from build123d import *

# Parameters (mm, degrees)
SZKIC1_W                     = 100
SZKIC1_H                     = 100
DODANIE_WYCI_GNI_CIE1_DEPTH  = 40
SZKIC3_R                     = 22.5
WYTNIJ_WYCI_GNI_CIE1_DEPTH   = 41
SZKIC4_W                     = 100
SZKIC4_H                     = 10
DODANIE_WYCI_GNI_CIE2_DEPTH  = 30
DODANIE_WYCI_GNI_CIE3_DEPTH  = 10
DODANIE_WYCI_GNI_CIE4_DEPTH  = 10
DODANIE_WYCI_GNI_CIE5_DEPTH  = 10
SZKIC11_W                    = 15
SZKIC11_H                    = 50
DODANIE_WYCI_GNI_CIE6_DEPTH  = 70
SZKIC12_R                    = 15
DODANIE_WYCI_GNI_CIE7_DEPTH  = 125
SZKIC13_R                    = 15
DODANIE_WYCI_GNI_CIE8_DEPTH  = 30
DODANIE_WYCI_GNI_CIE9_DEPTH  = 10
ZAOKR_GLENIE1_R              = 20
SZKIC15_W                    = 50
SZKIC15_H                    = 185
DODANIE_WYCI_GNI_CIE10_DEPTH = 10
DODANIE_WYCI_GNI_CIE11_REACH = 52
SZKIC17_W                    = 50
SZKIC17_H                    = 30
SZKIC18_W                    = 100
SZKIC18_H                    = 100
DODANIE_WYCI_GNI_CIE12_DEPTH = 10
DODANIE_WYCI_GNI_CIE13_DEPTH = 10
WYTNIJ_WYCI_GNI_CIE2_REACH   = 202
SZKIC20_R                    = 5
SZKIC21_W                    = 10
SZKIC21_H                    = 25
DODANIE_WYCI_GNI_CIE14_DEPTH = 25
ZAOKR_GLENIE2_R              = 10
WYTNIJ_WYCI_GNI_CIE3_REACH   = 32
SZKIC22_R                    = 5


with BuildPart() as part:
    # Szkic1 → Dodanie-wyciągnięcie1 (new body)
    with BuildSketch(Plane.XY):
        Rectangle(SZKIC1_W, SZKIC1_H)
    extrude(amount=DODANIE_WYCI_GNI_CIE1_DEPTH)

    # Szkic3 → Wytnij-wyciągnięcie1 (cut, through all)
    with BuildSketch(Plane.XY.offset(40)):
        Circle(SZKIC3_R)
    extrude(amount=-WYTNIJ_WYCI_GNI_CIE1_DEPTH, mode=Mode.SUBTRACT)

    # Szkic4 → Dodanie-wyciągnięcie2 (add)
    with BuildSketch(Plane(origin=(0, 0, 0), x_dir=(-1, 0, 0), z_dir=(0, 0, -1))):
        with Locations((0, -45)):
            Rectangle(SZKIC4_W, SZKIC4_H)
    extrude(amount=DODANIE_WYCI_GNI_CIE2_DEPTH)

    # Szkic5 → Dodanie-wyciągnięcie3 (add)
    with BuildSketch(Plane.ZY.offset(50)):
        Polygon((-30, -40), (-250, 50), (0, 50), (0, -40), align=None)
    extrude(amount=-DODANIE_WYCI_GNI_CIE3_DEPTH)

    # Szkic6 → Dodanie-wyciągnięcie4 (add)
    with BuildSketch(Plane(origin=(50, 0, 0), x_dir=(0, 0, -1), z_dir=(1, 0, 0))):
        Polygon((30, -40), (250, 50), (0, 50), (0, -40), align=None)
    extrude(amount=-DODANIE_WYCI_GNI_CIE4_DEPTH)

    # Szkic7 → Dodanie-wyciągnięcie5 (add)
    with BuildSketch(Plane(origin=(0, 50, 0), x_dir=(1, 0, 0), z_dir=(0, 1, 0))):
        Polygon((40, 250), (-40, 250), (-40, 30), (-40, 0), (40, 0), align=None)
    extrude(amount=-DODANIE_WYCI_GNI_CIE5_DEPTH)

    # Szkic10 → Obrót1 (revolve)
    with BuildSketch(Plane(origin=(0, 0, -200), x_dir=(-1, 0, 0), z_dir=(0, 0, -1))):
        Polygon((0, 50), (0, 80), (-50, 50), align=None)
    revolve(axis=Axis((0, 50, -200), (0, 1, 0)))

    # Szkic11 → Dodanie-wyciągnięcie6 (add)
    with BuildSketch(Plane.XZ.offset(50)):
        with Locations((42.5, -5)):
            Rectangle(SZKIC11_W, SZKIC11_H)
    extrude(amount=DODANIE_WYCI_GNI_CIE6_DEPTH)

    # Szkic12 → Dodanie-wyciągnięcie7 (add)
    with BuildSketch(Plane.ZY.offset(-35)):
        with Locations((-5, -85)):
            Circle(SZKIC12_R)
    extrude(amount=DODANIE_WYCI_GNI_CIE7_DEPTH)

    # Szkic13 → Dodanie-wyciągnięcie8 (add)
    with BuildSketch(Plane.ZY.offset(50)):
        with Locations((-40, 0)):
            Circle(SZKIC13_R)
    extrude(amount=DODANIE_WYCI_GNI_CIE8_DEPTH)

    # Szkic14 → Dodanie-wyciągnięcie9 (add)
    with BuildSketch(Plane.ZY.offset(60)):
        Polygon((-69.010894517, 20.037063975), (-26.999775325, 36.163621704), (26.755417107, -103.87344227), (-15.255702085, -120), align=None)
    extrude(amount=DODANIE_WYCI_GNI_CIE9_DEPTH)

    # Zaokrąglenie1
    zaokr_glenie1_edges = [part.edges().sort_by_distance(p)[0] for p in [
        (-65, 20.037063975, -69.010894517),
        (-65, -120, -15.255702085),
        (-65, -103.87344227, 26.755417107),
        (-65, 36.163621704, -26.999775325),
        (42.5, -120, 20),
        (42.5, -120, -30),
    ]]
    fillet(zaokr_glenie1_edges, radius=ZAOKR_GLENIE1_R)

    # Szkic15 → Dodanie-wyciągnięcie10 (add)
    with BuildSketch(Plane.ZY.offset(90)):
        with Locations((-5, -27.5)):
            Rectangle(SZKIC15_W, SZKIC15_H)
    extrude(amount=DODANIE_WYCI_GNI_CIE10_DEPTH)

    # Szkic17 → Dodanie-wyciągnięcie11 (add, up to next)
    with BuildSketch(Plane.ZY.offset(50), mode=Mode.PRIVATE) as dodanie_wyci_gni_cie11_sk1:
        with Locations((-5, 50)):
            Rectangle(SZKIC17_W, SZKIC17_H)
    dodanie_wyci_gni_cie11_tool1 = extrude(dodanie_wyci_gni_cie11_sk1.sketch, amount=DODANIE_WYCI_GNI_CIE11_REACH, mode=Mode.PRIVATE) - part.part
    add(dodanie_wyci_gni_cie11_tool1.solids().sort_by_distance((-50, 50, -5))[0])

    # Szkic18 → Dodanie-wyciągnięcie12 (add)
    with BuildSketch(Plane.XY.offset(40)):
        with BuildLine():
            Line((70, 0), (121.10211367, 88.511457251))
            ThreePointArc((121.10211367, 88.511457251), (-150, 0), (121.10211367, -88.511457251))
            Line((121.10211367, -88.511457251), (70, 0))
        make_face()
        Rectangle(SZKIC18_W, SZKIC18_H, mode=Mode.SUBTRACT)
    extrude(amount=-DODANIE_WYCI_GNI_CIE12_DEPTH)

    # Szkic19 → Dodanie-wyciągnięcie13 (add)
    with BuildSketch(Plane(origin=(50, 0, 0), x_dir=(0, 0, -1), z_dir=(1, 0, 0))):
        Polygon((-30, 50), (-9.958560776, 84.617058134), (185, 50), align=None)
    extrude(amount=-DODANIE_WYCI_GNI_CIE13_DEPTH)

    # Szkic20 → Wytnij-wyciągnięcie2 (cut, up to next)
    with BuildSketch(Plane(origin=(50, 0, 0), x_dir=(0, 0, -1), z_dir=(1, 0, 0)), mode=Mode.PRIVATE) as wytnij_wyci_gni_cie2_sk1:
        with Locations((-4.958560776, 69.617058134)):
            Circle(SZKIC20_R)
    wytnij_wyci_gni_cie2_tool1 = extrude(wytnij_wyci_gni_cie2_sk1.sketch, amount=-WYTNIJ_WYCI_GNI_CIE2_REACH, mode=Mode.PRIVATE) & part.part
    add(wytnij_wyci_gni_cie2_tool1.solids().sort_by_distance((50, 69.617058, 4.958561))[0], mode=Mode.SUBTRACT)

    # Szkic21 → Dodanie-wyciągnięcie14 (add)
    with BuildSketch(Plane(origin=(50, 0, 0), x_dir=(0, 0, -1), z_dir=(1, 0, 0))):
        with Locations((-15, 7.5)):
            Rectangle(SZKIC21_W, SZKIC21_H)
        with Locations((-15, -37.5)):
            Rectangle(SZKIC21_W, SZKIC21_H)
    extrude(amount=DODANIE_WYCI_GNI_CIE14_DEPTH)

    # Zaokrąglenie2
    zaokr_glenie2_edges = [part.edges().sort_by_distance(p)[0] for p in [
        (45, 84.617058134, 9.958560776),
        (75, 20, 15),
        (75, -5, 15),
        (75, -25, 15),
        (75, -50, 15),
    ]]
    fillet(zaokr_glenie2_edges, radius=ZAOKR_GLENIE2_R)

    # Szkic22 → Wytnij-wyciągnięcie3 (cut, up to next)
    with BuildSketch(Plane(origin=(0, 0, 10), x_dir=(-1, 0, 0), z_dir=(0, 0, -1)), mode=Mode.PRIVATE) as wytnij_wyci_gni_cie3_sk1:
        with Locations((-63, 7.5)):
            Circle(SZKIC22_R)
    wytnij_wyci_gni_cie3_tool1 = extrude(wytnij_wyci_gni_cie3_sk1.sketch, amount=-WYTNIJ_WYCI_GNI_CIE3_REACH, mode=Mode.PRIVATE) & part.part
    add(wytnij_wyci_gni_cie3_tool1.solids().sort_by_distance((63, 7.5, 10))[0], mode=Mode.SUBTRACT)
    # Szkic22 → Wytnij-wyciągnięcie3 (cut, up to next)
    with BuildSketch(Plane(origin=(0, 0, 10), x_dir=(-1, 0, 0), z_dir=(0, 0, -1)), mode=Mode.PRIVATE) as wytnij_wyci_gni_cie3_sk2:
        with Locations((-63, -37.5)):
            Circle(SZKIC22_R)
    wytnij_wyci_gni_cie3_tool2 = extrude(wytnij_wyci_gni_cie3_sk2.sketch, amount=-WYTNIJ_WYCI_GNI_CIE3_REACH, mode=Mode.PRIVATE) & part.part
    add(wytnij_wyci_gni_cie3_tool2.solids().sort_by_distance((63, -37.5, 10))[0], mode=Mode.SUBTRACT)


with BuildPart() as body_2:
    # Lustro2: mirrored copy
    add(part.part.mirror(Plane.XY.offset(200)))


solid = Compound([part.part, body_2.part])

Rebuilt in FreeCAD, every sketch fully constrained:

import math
import FreeCAD as App
import Part
import Sketcher

V = App.Vector
Q = App.Units.Quantity


def edges_at(feature, points):
    """Names of the edges that pass closest to the given points."""
    edges = feature.Shape.Edges
    near = lambda p: min(range(len(edges)), key=lambda i: edges[i].distToShape(Part.Vertex(*p))[0])
    return sorted({f"Edge{near(p) + 1}" for p in points})


def add_polygon(sketch, points):
    """Adds a closed chain of lines whose ends are joined by coincident constraints."""
    first, n = sketch.GeometryCount, len(points)
    for a, b in zip(points, points[1:] + points[:1]):
        sketch.addGeometry(Part.LineSegment(App.Vector(*a, 0), App.Vector(*b, 0)), False)
    for i in range(n):
        sketch.addConstraint(Sketcher.Constraint("Coincident", first + i, 2, first + (i + 1) % n, 1))

doc = App.newDocument("Part")
params = doc.addObject("Spreadsheet::Sheet", "Params")
for row, (alias, value) in enumerate([
    ("sketch1_width", "100 mm"),
    ("pad1_length", "40 mm"),
    ("sketch2_diameter", "45 mm"),
    ("sketch3_width", "100 mm"),
    ("sketch3_height", "10 mm"),
    ("pad2_length", "30 mm"),
    ("sketch4_width", "90 mm"),
    ("sketch4_height", "30 mm"),
    ("sketch4_height2", "250 mm"),
    ("pad3_length", "10 mm"),
    ("sketch5_width", "90 mm"),
    ("sketch5_height", "250 mm"),
    ("sketch5_height2", "30 mm"),
    ("pad4_length", "10 mm"),
    ("sketch6_width", "80 mm"),
    ("sketch6_height", "250 mm"),
    ("pad5_length", "10 mm"),
    ("sketch7_width", "50 mm"),
    ("sketch7_height", "30 mm"),
    ("revolution_angle", "360 deg"),
    ("sketch8_width", "15 mm"),
    ("sketch8_height", "50 mm"),
    ("pad6_length", "70 mm"),
    ("sketch9_diameter", "30 mm"),
    ("pad7_length", "125 mm"),
    ("sketch10_diameter", "30 mm"),
    ("pad8_length", "30 mm"),
    ("sketch11_length", "45 mm"),
    ("sketch11_length2", "150 mm"),
    ("pad9_length", "10 mm"),
    ("fillet_radius", "20 mm"),
    ("sketch12_width", "185 mm"),
    ("sketch12_height", "50 mm"),
    ("pad10_length", "10 mm"),
    ("sketch13_width", "30 mm"),
    ("sketch13_height", "50 mm"),
    ("sketch14_radius", "150 mm"),
    ("sketch14_width", "100 mm"),
    ("pad12_length", "10 mm"),
    ("sketch15_height", "215 mm"),
    ("sketch15_length", "40 mm"),
    ("pad13_length", "10 mm"),
    ("sketch16_diameter", "10 mm"),
    ("sketch17_width", "25 mm"),
    ("sketch17_height", "10 mm"),
    ("pad14_length", "25 mm"),
    ("fillet2_radius", "10 mm"),
    ("sketch18_diameter", "10 mm"),
    ("sketch19_diameter", "10 mm"),
], start=1):
    params.set(f"A{row}", alias)
    params.set(f"B{row}", "=" + value)
    params.setAlias(f"B{row}", alias)

body = doc.addObject("PartDesign::Body", "Body")

sketch1 = body.newObject("Sketcher::SketchObject", "Sketch")
sketch1.AttachmentSupport = (doc.getObject("XY_Plane"), [""])
sketch1.MapMode = "FlatFace"
add_polygon(sketch1, [(-50, 50), (-50, -50), (50, -50), (50, 50)])
sketch1.addConstraint([
    Sketcher.Constraint("Vertical", 0),
    Sketcher.Constraint("Horizontal", 1),
    Sketcher.Constraint("Vertical", 2),
    Sketcher.Constraint("Horizontal", 3),
    Sketcher.Constraint("Symmetric", 0, 2, 2, 2, -1, 1),
    Sketcher.Constraint("Equal", 3, 0),
    Sketcher.Constraint("DistanceX", 1, 1, 1, 2, 100.0),
])
sketch1.setExpression("Constraints[10]", "Params.sketch1_width")
pad1 = body.newObject("PartDesign::Pad", "Pad")
pad1.Profile = sketch1
pad1.setExpression("Length", "Params.pad1_length")

sketch2 = body.newObject("Sketcher::SketchObject", "Sketch001")
sketch2.AttachmentSupport = (doc.getObject("XY_Plane"), [""])
sketch2.MapMode = "FlatFace"
sketch2.AttachmentOffset = App.Placement(V(0, 0, 40), App.Rotation())
sketch2.addGeometry(Part.Circle(V(0, 0, 0), V(0, 0, 1), 22.5), False)
sketch2.addConstraint([
    Sketcher.Constraint("Coincident", 0, 3, -1, 1),
    Sketcher.Constraint("Diameter", 0, 45.0),
])
sketch2.setExpression("Constraints[1]", "Params.sketch2_diameter")
pocket1 = body.newObject("PartDesign::Pocket", "Pocket")
pocket1.Profile = sketch2
pocket1.Type = "ThroughAll"

sketch3 = body.newObject("Sketcher::SketchObject", "Sketch002")
sketch3.AttachmentSupport = (doc.getObject("XY_Plane"), [""])
sketch3.MapMode = "FlatFace"
add_polygon(sketch3, [(50, -40), (50, -50), (-50, -50), (-50, -40)])
sketch3.addConstraint([
    Sketcher.Constraint("Vertical", 0),
    Sketcher.Constraint("Horizontal", 1),
    Sketcher.Constraint("Vertical", 2),
    Sketcher.Constraint("Horizontal", 3),
    Sketcher.Constraint("DistanceX", 1, 2, 1, 1, 100.0),
    Sketcher.Constraint("DistanceY", 0, 2, 0, 1, 10.0),
    Sketcher.Constraint("DistanceX", -1, 1, 0, 2, 50.0),
    Sketcher.Constraint("DistanceY", 0, 2, -1, 1, 50.0),
])
sketch3.setExpression("Constraints[8]", "Params.sketch3_width")
sketch3.setExpression("Constraints[9]", "Params.sketch3_height")
pad2 = body.newObject("PartDesign::Pad", "Pad001")
pad2.Profile = sketch3
pad2.setExpression("Length", "Params.pad2_length")
pad2.Reversed = True

sketch4 = body.newObject("Sketcher::SketchObject", "Sketch003")
sketch4.AttachmentSupport = (doc.getObject("YZ_Plane"), [""])
sketch4.MapMode = "FlatFace"
sketch4.AttachmentOffset = App.Placement(V(0, 0, -50), App.Rotation())
add_polygon(sketch4, [(50, -250), (-40, -30), (-40, 0), (50, 0)])
sketch4.addConstraint([
    Sketcher.Constraint("Vertical", 1),
    Sketcher.Constraint("Horizontal", 2),
    Sketcher.Constraint("Vertical", 3),
    Sketcher.Constraint("PointOnObject", 1, 2, -1),
    Sketcher.Constraint("DistanceX", 2, 1, 2, 2, 90.0),
    Sketcher.Constraint("DistanceY", 1, 1, 1, 2, 30.0),
    Sketcher.Constraint("DistanceY", 3, 2, 3, 1, 250.0),
    Sketcher.Constraint("DistanceX", 0, 2, -1, 1, 40.0),
])
sketch4.setExpression("Constraints[8]", "Params.sketch4_width")
sketch4.setExpression("Constraints[9]", "Params.sketch4_height")
sketch4.setExpression("Constraints[10]", "Params.sketch4_height2")
pad3 = body.newObject("PartDesign::Pad", "Pad002")
pad3.Profile = sketch4
pad3.setExpression("Length", "Params.pad3_length")

sketch5 = body.newObject("Sketcher::SketchObject", "Sketch004")
sketch5.AttachmentSupport = (doc.getObject("YZ_Plane"), [""])
sketch5.MapMode = "FlatFace"
sketch5.AttachmentOffset = App.Placement(V(0, 0, 50), App.Rotation())
add_polygon(sketch5, [(-40, -30), (50, -250), (50, 0), (-40, 0)])
sketch5.addConstraint([
    Sketcher.Constraint("Vertical", 1),
    Sketcher.Constraint("Horizontal", 2),
    Sketcher.Constraint("Vertical", 3),
    Sketcher.Constraint("PointOnObject", 1, 2, -1),
    Sketcher.Constraint("DistanceX", 2, 2, 2, 1, 90.0),
    Sketcher.Constraint("DistanceY", 1, 1, 1, 2, 250.0),
    Sketcher.Constraint("DistanceY", 3, 2, 3, 1, 30.0),
    Sketcher.Constraint("DistanceX", -1, 1, 0, 2, 50.0),
])
sketch5.setExpression("Constraints[8]", "Params.sketch5_width")
sketch5.setExpression("Constraints[9]", "Params.sketch5_height")
sketch5.setExpression("Constraints[10]", "Params.sketch5_height2")
pad4 = body.newObject("PartDesign::Pad", "Pad003")
pad4.Profile = sketch5
pad4.setExpression("Length", "Params.pad4_length")
pad4.Reversed = True

sketch6 = body.newObject("Sketcher::SketchObject", "Sketch005")
sketch6.AttachmentSupport = (doc.getObject("XZ_Plane"), [""])
sketch6.MapMode = "FlatFace"
sketch6.AttachmentOffset = App.Placement(V(0, 0, -50), App.Rotation())
add_polygon(sketch6, [(40, -250), (-40, -250), (-40, 0), (40, 0)])
sketch6.addConstraint([
    Sketcher.Constraint("Horizontal", 0),
    Sketcher.Constraint("Vertical", 1),
    Sketcher.Constraint("Horizontal", 2),
    Sketcher.Constraint("Vertical", 3),
    Sketcher.Constraint("Symmetric", 1, 2, 2, 2, -1, 1),
    Sketcher.Constraint("DistanceX", 0, 2, 0, 1, 80.0),
    Sketcher.Constraint("DistanceY", 1, 1, 1, 2, 250.0),
])
sketch6.setExpression("Constraints[9]", "Params.sketch6_width")
sketch6.setExpression("Constraints[10]", "Params.sketch6_height")
pad5 = body.newObject("PartDesign::Pad", "Pad004")
pad5.Profile = sketch6
pad5.setExpression("Length", "Params.pad5_length")

sketch7 = body.newObject("Sketcher::SketchObject", "Sketch006")
sketch7.AttachmentSupport = (doc.getObject("XY_Plane"), [""])
sketch7.MapMode = "FlatFace"
sketch7.AttachmentOffset = App.Placement(V(0, 0, -200), App.Rotation())
add_polygon(sketch7, [(0, 50), (0, 80), (50, 50)])
sketch7.addConstraint([
    Sketcher.Constraint("Vertical", 0),
    Sketcher.Constraint("Horizontal", 2),
    Sketcher.Constraint("PointOnObject", 0, 2, -2),
    Sketcher.Constraint("DistanceX", 2, 2, 2, 1, 50.0),
    Sketcher.Constraint("DistanceY", 0, 1, 0, 2, 30.0),
    Sketcher.Constraint("DistanceY", -1, 1, 0, 2, 80.0),
])
sketch7.setExpression("Constraints[6]", "Params.sketch7_width")
sketch7.setExpression("Constraints[7]", "Params.sketch7_height")
revolution = body.newObject("PartDesign::Revolution", "Revolution")
revolution.Profile = sketch7
revolution.ReferenceAxis = (sketch7, ["V_Axis"])
revolution.setExpression("Angle", "Params.revolution_angle")

sketch8 = body.newObject("Sketcher::SketchObject", "Sketch007")
sketch8.AttachmentSupport = (doc.getObject("XZ_Plane"), [""])
sketch8.MapMode = "FlatFace"
sketch8.AttachmentOffset = App.Placement(V(0, 0, 50), App.Rotation())
add_polygon(sketch8, [(35, 20), (35, -30), (50, -30), (50, 20)])
sketch8.addConstraint([
    Sketcher.Constraint("Vertical", 0),
    Sketcher.Constraint("Horizontal", 1),
    Sketcher.Constraint("Vertical", 2),
    Sketcher.Constraint("Horizontal", 3),
    Sketcher.Constraint("DistanceX", 1, 1, 1, 2, 15.0),
    Sketcher.Constraint("DistanceY", 0, 2, 0, 1, 50.0),
    Sketcher.Constraint("DistanceX", -1, 1, 0, 2, 35.0),
    Sketcher.Constraint("DistanceY", 0, 2, -1, 1, 30.0),
])
sketch8.setExpression("Constraints[8]", "Params.sketch8_width")
sketch8.setExpression("Constraints[9]", "Params.sketch8_height")
pad6 = body.newObject("PartDesign::Pad", "Pad005")
pad6.Profile = sketch8
pad6.setExpression("Length", "Params.pad6_length")

sketch9 = body.newObject("Sketcher::SketchObject", "Sketch008")
sketch9.AttachmentSupport = (doc.getObject("YZ_Plane"), [""])
sketch9.MapMode = "FlatFace"
sketch9.AttachmentOffset = App.Placement(V(0, 0, 35), App.Rotation())
sketch9.addGeometry(Part.Circle(V(-85, -5, 0), V(0, 0, 1), 15), False)
sketch9.addConstraint([
    Sketcher.Constraint("Diameter", 0, 30.0),
    Sketcher.Constraint("DistanceX", 0, 3, -1, 1, 85.0),
    Sketcher.Constraint("DistanceY", 0, 3, -1, 1, 5.0),
])
sketch9.setExpression("Constraints[0]", "Params.sketch9_diameter")
pad7 = body.newObject("PartDesign::Pad", "Pad006")
pad7.Profile = sketch9
pad7.setExpression("Length", "Params.pad7_length")
pad7.Reversed = True

sketch10 = body.newObject("Sketcher::SketchObject", "Sketch009")
sketch10.AttachmentSupport = (doc.getObject("YZ_Plane"), [""])
sketch10.MapMode = "FlatFace"
sketch10.AttachmentOffset = App.Placement(V(0, 0, -50), App.Rotation())
sketch10.addGeometry(Part.Circle(V(0, -40, 0), V(0, 0, 1), 15), False)
sketch10.addConstraint([
    Sketcher.Constraint("PointOnObject", 0, 3, -2),
    Sketcher.Constraint("Diameter", 0, 30.0),
    Sketcher.Constraint("DistanceY", 0, 3, -1, 1, 40.0),
])
sketch10.setExpression("Constraints[1]", "Params.sketch10_diameter")
pad8 = body.newObject("PartDesign::Pad", "Pad007")
pad8.Profile = sketch10
pad8.setExpression("Length", "Params.pad8_length")
pad8.Reversed = True

sketch11 = body.newObject("Sketcher::SketchObject", "Sketch010")
sketch11.AttachmentSupport = (doc.getObject("YZ_Plane"), [""])
sketch11.MapMode = "FlatFace"
sketch11.AttachmentOffset = App.Placement(V(0, 0, -60), App.Rotation())
add_polygon(sketch11, [(36.163622, -26.999775), (20.037064, -69.010895), (-120, -15.255702), (-103.873442, 26.755417)])
sketch11.addConstraint([
    Sketcher.Constraint("Perpendicular", 0, 1),
    Sketcher.Constraint("Perpendicular", 1, 2),
    Sketcher.Constraint("Perpendicular", 2, 3),
    Sketcher.Constraint("Angle", 0, Q("-111 deg")),
    Sketcher.Constraint("Distance", 0, 45.0),
    Sketcher.Constraint("Distance", 1, 150.0),
    Sketcher.Constraint("DistanceX", 1, 2, -1, 1, 120.0),
    Sketcher.Constraint("DistanceY", 0, 2, -1, 1, 69.010895),
])
sketch11.setExpression("Constraints[8]", "Params.sketch11_length")
sketch11.setExpression("Constraints[9]", "Params.sketch11_length2")
pad9 = body.newObject("PartDesign::Pad", "Pad008")
pad9.Profile = sketch11
pad9.setExpression("Length", "Params.pad9_length")
pad9.Reversed = True
doc.recompute()

fillet = body.newObject("PartDesign::Fillet", "Fillet")
fillet.Base = (pad9, edges_at(pad9, [
    (-65, 20.037, -69.011),
    (-65, -120, -15.256),
    (-65, -103.873, 26.755),
    (-65, 36.164, -27),
    (42.5, -120, 20),
    (42.5, -120, -30),
]))
fillet.setExpression("Radius", "Params.fillet_radius")

sketch12 = body.newObject("Sketcher::SketchObject", "Sketch011")
sketch12.AttachmentSupport = (doc.getObject("YZ_Plane"), [""])
sketch12.MapMode = "FlatFace"
sketch12.AttachmentOffset = App.Placement(V(0, 0, -90), App.Rotation())
add_polygon(sketch12, [(65, -30), (-120, -30), (-120, 20), (65, 20)])
sketch12.addConstraint([
    Sketcher.Constraint("Horizontal", 0),
    Sketcher.Constraint("Vertical", 1),
    Sketcher.Constraint("Horizontal", 2),
    Sketcher.Constraint("Vertical", 3),
    Sketcher.Constraint("DistanceX", 0, 2, 0, 1, 185.0),
    Sketcher.Constraint("DistanceY", 1, 1, 1, 2, 50.0),
    Sketcher.Constraint("DistanceX", 0, 2, -1, 1, 120.0),
    Sketcher.Constraint("DistanceY", 0, 2, -1, 1, 30.0),
])
sketch12.setExpression("Constraints[8]", "Params.sketch12_width")
sketch12.setExpression("Constraints[9]", "Params.sketch12_height")
pad10 = body.newObject("PartDesign::Pad", "Pad009")
pad10.Profile = sketch12
pad10.setExpression("Length", "Params.pad10_length")
pad10.Reversed = True

sketch13 = body.newObject("Sketcher::SketchObject", "Sketch012")
sketch13.AttachmentSupport = (doc.getObject("YZ_Plane"), [""])
sketch13.MapMode = "FlatFace"
sketch13.AttachmentOffset = App.Placement(V(0, 0, -50), App.Rotation())
add_polygon(sketch13, [(65, -30), (35, -30), (35, 20), (65, 20)])
sketch13.addConstraint([
    Sketcher.Constraint("Horizontal", 0),
    Sketcher.Constraint("Vertical", 1),
    Sketcher.Constraint("Horizontal", 2),
    Sketcher.Constraint("Vertical", 3),
    Sketcher.Constraint("DistanceX", 0, 2, 0, 1, 30.0),
    Sketcher.Constraint("DistanceY", 1, 1, 1, 2, 50.0),
    Sketcher.Constraint("DistanceX", -1, 1, 0, 2, 35.0),
    Sketcher.Constraint("DistanceY", 0, 2, -1, 1, 30.0),
])
sketch13.setExpression("Constraints[8]", "Params.sketch13_width")
sketch13.setExpression("Constraints[9]", "Params.sketch13_height")
pad11 = body.newObject("PartDesign::Pad", "Pad010")
pad11.Profile = sketch13
pad11.Type = "UpToFirst"
pad11.Reversed = True

sketch14 = body.newObject("Sketcher::SketchObject", "Sketch013")
sketch14.AttachmentSupport = (doc.getObject("XY_Plane"), [""])
sketch14.MapMode = "FlatFace"
sketch14.AttachmentOffset = App.Placement(V(0, 0, 40), App.Rotation())
sketch14.addGeometry(Part.LineSegment(V(70, 0, 0), V(121.102114, 88.511457, 0)), False)
sketch14.addGeometry(Part.ArcOfCircle(Part.Circle(V(0, 0, 0), V(0, 0, 1), 150), math.radians(36.162429), math.radians(323.837571)), False)
sketch14.addGeometry(Part.LineSegment(V(121.102114, -88.511457, 0), V(70, 0, 0)), False)
add_polygon(sketch14, [(50, -50), (-50, -50), (-50, 50), (50, 50)])
sketch14.addConstraint([
    Sketcher.Constraint("Coincident", 0, 2, 1, 1),
    Sketcher.Constraint("Coincident", 1, 2, 2, 1),
    Sketcher.Constraint("Coincident", 2, 2, 0, 1),
    Sketcher.Constraint("Horizontal", 3),
    Sketcher.Constraint("Vertical", 4),
    Sketcher.Constraint("Horizontal", 5),
    Sketcher.Constraint("Vertical", 6),
    Sketcher.Constraint("Coincident", 1, 3, -1, 1),
    Sketcher.Constraint("Symmetric", 3, 2, 5, 2, -1, 1),
    Sketcher.Constraint("PointOnObject", 2, 2, -1),
    Sketcher.Constraint("Vertical", 0, 2, 1, 2),
    Sketcher.Constraint("Equal", 5, 4),
    Sketcher.Constraint("Radius", 1, 150.0),
    Sketcher.Constraint("DistanceX", 3, 2, 3, 1, 100.0),
    Sketcher.Constraint("Angle", 0, Q("60 deg")),
    Sketcher.Constraint("DistanceX", -1, 1, 2, 2, 70.0),
])
sketch14.setExpression("Constraints[16]", "Params.sketch14_radius")
sketch14.setExpression("Constraints[17]", "Params.sketch14_width")
pad12 = body.newObject("PartDesign::Pad", "Pad011")
pad12.Profile = sketch14
pad12.setExpression("Length", "Params.pad12_length")
pad12.Reversed = True

sketch15 = body.newObject("Sketcher::SketchObject", "Sketch014")
sketch15.AttachmentSupport = (doc.getObject("YZ_Plane"), [""])
sketch15.MapMode = "FlatFace"
sketch15.AttachmentOffset = App.Placement(V(0, 0, 50), App.Rotation())
add_polygon(sketch15, [(84.617058, 9.958561), (50, 30), (50, -185)])
sketch15.addConstraint([
    Sketcher.Constraint("Vertical", 1),
    Sketcher.Constraint("DistanceY", 1, 2, 1, 1, 215.0),
    Sketcher.Constraint("Distance", 0, 40.0),
    Sketcher.Constraint("DistanceX", -1, 1, 0, 2, 50.0),
    Sketcher.Constraint("DistanceY", -1, 1, 0, 2, 30.0),
    Sketcher.Constraint("DistanceX", -1, 1, 2, 2, 84.617058),
])
sketch15.setExpression("Constraints[4]", "Params.sketch15_height")
sketch15.setExpression("Constraints[5]", "Params.sketch15_length")
pad13 = body.newObject("PartDesign::Pad", "Pad012")
pad13.Profile = sketch15
pad13.setExpression("Length", "Params.pad13_length")
pad13.Reversed = True

sketch16 = body.newObject("Sketcher::SketchObject", "Sketch015")
sketch16.AttachmentSupport = (doc.getObject("YZ_Plane"), [""])
sketch16.MapMode = "FlatFace"
sketch16.AttachmentOffset = App.Placement(V(0, 0, 50), App.Rotation())
sketch16.addGeometry(Part.Circle(V(69.617058, 4.958561, 0), V(0, 0, 1), 5), False)
sketch16.addConstraint([
    Sketcher.Constraint("Diameter", 0, 10.0),
    Sketcher.Constraint("DistanceX", -1, 1, 0, 3, 69.617058),
    Sketcher.Constraint("DistanceY", -1, 1, 0, 3, 4.958561),
])
sketch16.setExpression("Constraints[0]", "Params.sketch16_diameter")
pocket2 = body.newObject("PartDesign::Pocket", "Pocket001")
pocket2.Profile = sketch16
pocket2.Type = "UpToFirst"

sketch17 = body.newObject("Sketcher::SketchObject", "Sketch016")
sketch17.AttachmentSupport = (doc.getObject("YZ_Plane"), [""])
sketch17.MapMode = "FlatFace"
sketch17.AttachmentOffset = App.Placement(V(0, 0, 50), App.Rotation())
add_polygon(sketch17, [(20, 20), (-5, 20), (-5, 10), (20, 10)])
add_polygon(sketch17, [(-25, 20), (-50, 20), (-50, 10), (-25, 10)])
sketch17.addConstraint([
    Sketcher.Constraint("Horizontal", 0),
    Sketcher.Constraint("Vertical", 1),
    Sketcher.Constraint("Horizontal", 2),
    Sketcher.Constraint("Vertical", 3),
    Sketcher.Constraint("Horizontal", 4),
    Sketcher.Constraint("Vertical", 5),
    Sketcher.Constraint("Horizontal", 6),
    Sketcher.Constraint("Vertical", 7),
    Sketcher.Constraint("Horizontal", 3, 2, 4, 2),
    Sketcher.Constraint("Horizontal", 2, 2, 5, 2),
    Sketcher.Constraint("Equal", 2, 4),
    Sketcher.Constraint("DistanceX", 0, 2, 0, 1, 25.0),
    Sketcher.Constraint("DistanceY", 1, 2, 1, 1, 10.0),
    Sketcher.Constraint("DistanceX", 0, 2, -1, 1, 5.0),
    Sketcher.Constraint("DistanceY", -1, 1, 0, 2, 20.0),
    Sketcher.Constraint("DistanceX", 4, 2, -1, 1, 50.0),
])
sketch17.setExpression("Constraints[19]", "Params.sketch17_width")
sketch17.setExpression("Constraints[20]", "Params.sketch17_height")
pad14 = body.newObject("PartDesign::Pad", "Pad013")
pad14.Profile = sketch17
pad14.setExpression("Length", "Params.pad14_length")
doc.recompute()

fillet2 = body.newObject("PartDesign::Fillet", "Fillet001")
fillet2.Base = (pad14, edges_at(pad14, [
    (45, 84.617, 9.959),
    (75, 20, 15),
    (75, -5, 15),
    (75, -25, 15),
    (75, -50, 15),
]))
fillet2.setExpression("Radius", "Params.fillet2_radius")

sketch18 = body.newObject("Sketcher::SketchObject", "Sketch017")
sketch18.AttachmentSupport = (doc.getObject("XY_Plane"), [""])
sketch18.MapMode = "FlatFace"
sketch18.AttachmentOffset = App.Placement(V(0, 0, 10), App.Rotation())
sketch18.addGeometry(Part.Circle(V(63, 7.5, 0), V(0, 0, 1), 5), False)
sketch18.addConstraint([
    Sketcher.Constraint("Diameter", 0, 10.0),
    Sketcher.Constraint("DistanceX", -1, 1, 0, 3, 63.0),
    Sketcher.Constraint("DistanceY", -1, 1, 0, 3, 7.5),
])
sketch18.setExpression("Constraints[0]", "Params.sketch18_diameter")
pocket3 = body.newObject("PartDesign::Pocket", "Pocket002")
pocket3.Profile = sketch18
pocket3.Type = "UpToFirst"
pocket3.Reversed = True

sketch19 = body.newObject("Sketcher::SketchObject", "Sketch018")
sketch19.AttachmentSupport = (doc.getObject("XY_Plane"), [""])
sketch19.MapMode = "FlatFace"
sketch19.AttachmentOffset = App.Placement(V(0, 0, 10), App.Rotation())
sketch19.addGeometry(Part.Circle(V(63, -37.5, 0), V(0, 0, 1), 5), False)
sketch19.addConstraint([
    Sketcher.Constraint("Diameter", 0, 10.0),
    Sketcher.Constraint("DistanceX", -1, 1, 0, 3, 63.0),
    Sketcher.Constraint("DistanceY", 0, 3, -1, 1, 37.5),
])
sketch19.setExpression("Constraints[0]", "Params.sketch19_diameter")
pocket4 = body.newObject("PartDesign::Pocket", "Pocket003")
pocket4.Profile = sketch19
pocket4.Type = "UpToFirst"
pocket4.Reversed = True
body2 = doc.addObject("PartDesign::Body", "Body001")
doc.recompute()

mirroring = doc.addObject("Part::Mirroring", "Mirroring")
mirroring.Source = body
mirroring.Base = V(0, 0, 200)
mirroring.Normal = V(0, 0, 1)
body2.BaseFeature = mirroring
doc.recompute()
mirroring.Visibility = False

doc.recompute()
